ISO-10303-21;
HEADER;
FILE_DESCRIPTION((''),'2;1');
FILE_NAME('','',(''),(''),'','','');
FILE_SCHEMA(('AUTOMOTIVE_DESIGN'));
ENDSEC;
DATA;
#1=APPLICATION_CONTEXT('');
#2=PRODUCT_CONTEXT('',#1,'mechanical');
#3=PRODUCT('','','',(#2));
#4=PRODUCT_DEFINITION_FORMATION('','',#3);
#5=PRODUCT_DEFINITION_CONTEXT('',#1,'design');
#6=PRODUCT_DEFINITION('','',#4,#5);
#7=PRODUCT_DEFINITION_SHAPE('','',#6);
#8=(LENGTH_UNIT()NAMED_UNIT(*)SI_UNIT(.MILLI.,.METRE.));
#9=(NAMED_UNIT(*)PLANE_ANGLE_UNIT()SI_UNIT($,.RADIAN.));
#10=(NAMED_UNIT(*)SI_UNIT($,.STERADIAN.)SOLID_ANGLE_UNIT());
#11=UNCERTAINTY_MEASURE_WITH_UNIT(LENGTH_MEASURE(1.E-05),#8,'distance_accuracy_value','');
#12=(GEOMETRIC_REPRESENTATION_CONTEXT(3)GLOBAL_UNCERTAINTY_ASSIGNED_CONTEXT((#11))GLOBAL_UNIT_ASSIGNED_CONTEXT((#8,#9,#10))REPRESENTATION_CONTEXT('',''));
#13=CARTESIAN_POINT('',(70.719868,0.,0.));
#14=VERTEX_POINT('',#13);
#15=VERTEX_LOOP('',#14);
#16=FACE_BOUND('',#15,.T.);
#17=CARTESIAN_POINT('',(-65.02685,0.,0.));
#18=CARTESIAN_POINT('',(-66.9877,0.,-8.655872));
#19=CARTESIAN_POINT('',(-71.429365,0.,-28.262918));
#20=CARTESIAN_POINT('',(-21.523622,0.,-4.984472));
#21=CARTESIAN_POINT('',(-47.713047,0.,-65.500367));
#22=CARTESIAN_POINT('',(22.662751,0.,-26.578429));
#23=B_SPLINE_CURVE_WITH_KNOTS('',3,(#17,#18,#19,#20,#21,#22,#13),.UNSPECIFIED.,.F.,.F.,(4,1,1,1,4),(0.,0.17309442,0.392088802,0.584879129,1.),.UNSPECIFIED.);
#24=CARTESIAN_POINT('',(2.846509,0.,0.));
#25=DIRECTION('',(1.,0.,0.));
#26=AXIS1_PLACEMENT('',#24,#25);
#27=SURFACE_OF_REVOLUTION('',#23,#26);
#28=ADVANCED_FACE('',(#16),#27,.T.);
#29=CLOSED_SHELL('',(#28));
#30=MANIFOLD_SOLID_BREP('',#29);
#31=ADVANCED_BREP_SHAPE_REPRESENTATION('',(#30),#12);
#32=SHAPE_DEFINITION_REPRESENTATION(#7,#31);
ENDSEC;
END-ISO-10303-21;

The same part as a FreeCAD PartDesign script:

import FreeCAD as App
import Part
import Sketcher

V = App.Vector

doc = App.newDocument("Part")
body = doc.addObject("PartDesign::Body", "Body")

# Sketch on XZ plane
sketch1 = doc.addObject("Sketcher::SketchObject", "Sketch")
body.addObject(sketch1)
sketch1.AttachmentSupport = (doc.XZ_Plane, [""])
sketch1.MapMode = "FlatFace"
sketch1.addGeometry([
    Part.LineSegment(V(70.719868, 0, 0), V(-65.02685, 0, 0)),
    Part.BSplineCurve([V(-65.02685, 0, 0), V(-66.9877, -8.655872, 0), V(-71.429365, -28.262918, 0), V(-21.523622, -4.984472, 0), V(-47.713047, -65.500367, 0), V(22.662751, -26.578429, 0), V(70.719868, 0, 0)], [4, 1, 1, 1, 4], [0, 0.17309442, 0.392088802, 0.584879129, 1], False, 3, [1, 1, 1, 1, 1, 1, 1], False),
], False)
sketch1.addConstraint([
    Sketcher.Constraint("Block", 1),
    Sketcher.Constraint("Coincident", 0, 1, 1, 2),
    Sketcher.Constraint("Coincident", 1, 1, 0, 2),
])
revolution = doc.addObject("PartDesign::Revolution", "Revolution")
body.addObject(revolution)
revolution.Profile = sketch1
revolution.ReferenceAxis = (sketch1, ["H_Axis"])
revolution.Angle = 360

doc.recompute()
